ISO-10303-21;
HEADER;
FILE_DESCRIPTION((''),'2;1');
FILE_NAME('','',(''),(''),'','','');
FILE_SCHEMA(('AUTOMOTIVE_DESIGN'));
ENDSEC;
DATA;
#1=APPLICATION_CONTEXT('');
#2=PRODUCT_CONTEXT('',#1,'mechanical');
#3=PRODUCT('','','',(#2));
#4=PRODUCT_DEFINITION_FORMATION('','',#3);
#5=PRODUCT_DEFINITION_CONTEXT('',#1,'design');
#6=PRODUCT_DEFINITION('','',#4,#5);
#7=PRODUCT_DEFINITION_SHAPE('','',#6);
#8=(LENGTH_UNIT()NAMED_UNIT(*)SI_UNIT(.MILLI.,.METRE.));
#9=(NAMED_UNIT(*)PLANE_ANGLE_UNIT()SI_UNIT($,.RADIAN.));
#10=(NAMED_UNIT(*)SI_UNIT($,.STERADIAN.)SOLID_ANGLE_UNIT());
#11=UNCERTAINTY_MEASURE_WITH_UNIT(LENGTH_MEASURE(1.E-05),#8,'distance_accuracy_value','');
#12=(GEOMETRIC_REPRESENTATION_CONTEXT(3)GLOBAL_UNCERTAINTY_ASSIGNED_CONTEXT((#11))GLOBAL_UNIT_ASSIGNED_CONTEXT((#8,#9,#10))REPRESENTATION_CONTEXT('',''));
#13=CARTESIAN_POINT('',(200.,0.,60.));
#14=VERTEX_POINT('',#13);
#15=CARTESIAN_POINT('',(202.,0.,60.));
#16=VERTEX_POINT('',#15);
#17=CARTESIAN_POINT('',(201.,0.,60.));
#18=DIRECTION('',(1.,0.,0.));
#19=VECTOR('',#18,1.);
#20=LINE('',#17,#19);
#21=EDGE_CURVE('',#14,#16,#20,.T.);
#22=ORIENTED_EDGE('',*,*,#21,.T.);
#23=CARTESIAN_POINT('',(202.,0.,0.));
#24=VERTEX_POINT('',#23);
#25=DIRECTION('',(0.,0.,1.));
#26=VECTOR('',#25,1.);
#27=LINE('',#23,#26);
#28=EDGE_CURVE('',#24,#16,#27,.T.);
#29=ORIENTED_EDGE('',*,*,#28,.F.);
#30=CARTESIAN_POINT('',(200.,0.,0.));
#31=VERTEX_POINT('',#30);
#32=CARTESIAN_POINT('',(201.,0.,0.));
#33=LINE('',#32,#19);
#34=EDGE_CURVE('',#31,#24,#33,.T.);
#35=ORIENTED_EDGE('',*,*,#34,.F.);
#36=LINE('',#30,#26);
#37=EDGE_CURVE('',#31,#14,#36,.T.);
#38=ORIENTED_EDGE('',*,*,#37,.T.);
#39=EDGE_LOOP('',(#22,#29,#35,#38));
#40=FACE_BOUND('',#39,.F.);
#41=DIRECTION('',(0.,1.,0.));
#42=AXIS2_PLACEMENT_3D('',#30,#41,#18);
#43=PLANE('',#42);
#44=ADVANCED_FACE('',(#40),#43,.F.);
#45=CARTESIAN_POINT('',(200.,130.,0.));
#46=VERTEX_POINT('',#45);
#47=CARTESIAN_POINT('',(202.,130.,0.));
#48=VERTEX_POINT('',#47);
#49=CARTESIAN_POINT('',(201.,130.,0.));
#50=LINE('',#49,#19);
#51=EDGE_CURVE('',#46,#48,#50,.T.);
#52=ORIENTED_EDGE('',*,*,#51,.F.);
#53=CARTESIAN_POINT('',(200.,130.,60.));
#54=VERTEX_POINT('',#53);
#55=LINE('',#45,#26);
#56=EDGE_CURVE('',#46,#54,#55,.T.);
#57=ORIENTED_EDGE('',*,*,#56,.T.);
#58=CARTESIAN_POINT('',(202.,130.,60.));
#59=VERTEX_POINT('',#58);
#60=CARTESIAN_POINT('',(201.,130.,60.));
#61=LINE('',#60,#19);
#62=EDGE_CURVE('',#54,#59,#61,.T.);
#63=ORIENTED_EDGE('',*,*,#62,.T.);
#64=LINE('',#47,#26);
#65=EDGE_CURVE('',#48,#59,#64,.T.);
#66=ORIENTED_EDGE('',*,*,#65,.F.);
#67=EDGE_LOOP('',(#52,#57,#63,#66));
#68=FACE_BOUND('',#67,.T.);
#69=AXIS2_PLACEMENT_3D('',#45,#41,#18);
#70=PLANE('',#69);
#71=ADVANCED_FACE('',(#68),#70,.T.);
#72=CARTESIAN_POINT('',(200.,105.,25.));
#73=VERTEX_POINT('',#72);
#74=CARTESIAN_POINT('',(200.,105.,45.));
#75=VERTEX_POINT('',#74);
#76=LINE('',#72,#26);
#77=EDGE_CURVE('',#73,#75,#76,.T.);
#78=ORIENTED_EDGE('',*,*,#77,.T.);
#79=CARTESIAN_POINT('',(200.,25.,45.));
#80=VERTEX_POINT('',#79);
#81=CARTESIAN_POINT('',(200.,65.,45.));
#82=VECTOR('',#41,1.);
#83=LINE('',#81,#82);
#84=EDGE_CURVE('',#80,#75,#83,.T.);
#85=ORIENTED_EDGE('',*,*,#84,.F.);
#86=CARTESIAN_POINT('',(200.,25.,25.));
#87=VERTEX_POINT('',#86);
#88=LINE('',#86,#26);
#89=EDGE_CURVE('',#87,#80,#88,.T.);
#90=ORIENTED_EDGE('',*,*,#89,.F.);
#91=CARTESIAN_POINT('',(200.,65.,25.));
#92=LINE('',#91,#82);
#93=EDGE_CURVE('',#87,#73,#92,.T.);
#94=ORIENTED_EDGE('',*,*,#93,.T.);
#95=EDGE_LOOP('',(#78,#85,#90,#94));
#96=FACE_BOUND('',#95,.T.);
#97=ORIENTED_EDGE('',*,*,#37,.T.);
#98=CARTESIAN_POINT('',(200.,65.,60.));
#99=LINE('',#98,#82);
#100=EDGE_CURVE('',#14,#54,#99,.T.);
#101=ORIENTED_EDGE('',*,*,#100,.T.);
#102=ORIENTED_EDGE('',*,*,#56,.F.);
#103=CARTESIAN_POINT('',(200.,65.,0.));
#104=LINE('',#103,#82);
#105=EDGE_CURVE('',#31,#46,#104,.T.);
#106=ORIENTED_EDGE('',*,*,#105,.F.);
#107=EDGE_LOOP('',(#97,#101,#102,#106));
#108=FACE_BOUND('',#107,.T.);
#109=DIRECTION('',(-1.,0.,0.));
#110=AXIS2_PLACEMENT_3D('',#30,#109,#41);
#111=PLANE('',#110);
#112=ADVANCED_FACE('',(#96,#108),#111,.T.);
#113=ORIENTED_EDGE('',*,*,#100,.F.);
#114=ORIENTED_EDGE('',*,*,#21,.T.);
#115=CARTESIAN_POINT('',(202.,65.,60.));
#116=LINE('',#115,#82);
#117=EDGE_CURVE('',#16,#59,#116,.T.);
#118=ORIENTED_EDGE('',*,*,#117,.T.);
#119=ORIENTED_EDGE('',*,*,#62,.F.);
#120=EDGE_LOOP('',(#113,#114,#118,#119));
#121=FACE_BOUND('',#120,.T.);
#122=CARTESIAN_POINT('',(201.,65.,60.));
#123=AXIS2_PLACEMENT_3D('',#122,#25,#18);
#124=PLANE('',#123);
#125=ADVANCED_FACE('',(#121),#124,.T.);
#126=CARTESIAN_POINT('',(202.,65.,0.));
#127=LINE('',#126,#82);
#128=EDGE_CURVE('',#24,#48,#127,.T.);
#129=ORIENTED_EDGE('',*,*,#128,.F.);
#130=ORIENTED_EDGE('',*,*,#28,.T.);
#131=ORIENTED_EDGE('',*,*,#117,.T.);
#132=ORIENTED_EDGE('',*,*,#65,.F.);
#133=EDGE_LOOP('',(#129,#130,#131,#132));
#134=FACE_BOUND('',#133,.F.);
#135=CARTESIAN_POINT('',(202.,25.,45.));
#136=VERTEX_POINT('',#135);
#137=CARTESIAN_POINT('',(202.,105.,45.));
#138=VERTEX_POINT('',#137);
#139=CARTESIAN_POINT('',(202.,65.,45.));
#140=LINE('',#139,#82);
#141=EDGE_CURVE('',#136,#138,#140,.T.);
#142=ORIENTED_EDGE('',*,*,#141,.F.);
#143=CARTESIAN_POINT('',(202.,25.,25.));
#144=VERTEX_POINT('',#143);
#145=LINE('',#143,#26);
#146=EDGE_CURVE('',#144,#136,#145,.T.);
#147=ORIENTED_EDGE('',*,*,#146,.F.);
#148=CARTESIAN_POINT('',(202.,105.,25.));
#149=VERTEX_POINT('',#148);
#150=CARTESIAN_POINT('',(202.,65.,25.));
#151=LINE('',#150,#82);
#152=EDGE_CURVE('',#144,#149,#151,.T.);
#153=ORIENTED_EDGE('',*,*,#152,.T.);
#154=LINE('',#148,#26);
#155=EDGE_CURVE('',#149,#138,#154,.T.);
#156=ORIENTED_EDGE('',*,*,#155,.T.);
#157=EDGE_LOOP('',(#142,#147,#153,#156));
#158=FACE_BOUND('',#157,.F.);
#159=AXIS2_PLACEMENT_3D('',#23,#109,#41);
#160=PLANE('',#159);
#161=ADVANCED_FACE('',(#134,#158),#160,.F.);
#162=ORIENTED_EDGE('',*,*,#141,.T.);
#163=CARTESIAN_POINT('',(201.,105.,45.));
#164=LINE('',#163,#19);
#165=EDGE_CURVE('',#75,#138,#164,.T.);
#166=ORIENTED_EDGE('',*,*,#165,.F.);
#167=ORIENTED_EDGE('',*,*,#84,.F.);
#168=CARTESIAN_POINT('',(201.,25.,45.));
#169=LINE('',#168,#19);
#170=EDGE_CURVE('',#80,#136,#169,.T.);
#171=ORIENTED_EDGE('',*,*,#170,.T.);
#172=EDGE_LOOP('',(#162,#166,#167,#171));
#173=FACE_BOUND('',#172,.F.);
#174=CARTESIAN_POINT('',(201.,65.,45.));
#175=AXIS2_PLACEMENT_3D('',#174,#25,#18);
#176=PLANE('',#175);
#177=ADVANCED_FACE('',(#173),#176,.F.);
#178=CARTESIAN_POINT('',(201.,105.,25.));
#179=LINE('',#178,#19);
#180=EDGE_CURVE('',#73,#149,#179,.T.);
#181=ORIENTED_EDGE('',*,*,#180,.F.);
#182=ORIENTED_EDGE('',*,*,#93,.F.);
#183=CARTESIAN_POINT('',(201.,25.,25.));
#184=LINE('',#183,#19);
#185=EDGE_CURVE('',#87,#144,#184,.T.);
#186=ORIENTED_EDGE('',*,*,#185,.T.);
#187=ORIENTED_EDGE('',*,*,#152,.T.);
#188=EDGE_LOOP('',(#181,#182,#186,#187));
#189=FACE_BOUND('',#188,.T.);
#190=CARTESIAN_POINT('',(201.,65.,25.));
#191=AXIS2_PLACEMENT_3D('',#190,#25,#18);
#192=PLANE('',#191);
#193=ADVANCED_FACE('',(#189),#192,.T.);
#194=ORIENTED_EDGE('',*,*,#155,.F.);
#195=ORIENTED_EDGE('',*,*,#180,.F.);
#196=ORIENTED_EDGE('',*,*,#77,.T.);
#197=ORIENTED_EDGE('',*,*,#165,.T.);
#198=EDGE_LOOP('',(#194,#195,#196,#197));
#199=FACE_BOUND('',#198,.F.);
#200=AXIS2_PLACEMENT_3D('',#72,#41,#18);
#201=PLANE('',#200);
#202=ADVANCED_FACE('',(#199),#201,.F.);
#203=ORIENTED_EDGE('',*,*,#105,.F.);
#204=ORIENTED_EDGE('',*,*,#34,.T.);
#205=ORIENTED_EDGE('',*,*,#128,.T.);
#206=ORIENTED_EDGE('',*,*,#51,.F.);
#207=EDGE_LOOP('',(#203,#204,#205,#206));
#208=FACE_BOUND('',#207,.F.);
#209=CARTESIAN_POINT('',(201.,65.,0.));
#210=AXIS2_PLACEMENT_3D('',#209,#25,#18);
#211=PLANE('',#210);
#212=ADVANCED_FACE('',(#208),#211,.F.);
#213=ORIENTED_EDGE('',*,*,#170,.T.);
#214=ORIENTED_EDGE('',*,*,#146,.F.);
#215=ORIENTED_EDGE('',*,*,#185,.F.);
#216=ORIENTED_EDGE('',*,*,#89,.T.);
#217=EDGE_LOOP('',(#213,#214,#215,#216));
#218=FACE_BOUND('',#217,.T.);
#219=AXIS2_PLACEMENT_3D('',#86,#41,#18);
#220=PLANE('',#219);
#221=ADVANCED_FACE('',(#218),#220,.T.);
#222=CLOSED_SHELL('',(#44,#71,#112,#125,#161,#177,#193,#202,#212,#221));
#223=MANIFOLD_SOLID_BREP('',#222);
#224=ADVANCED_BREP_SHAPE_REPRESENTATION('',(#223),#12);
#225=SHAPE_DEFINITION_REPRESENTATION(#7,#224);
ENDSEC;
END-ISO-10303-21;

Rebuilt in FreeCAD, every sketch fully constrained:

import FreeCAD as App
import Part
import Sketcher

V = App.Vector
Q = App.Units.Quantity


def add_polygon(sketch, points):
    """Adds a closed chain of lines whose ends are joined by coincident constraints."""
    first, n = sketch.GeometryCount, len(points)
    for a, b in zip(points, points[1:] + points[:1]):
        sketch.addGeometry(Part.LineSegment(App.Vector(*a, 0), App.Vector(*b, 0)), False)
    for i in range(n):
        sketch.addConstraint(Sketcher.Constraint("Coincident", first + i, 2, first + (i + 1) % n, 1))

doc = App.newDocument("Part")
params = doc.addObject("Spreadsheet::Sheet", "Params")
for row, (alias, value) in enumerate([
    ("sketch1_width", "2 mm"),
    ("sketch1_height", "80 mm"),
    ("pad1_length", "20 mm"),
    ("sketch2_width", "2 mm"),
    ("sketch2_height", "130 mm"),
    ("pad2_length", "60 mm"),
], start=1):
    params.set(f"A{row}", alias)
    params.set(f"B{row}", "=" + value)
    params.setAlias(f"B{row}", alias)

body = doc.addObject("PartDesign::Body", "Body")

# Sketch on XY plane
sketch1 = doc.addObject("Sketcher::SketchObject", "Sketch")
body.addObject(sketch1)
sketch1.AttachmentSupport = (doc.XY_Plane, [""])
sketch1.MapMode = "FlatFace"
sketch1.AttachmentOffset = App.Placement(V(0, 0, 25), App.Rotation())
add_polygon(sketch1, [(200, 105), (200, 25), (202, 25), (202, 105)])  # lines 0-3
sketch1.addConstraint(Sketcher.Constraint("Vertical", 0))
sketch1.addConstraint(Sketcher.Constraint("Horizontal", 1))
sketch1.addConstraint(Sketcher.Constraint("Vertical", 2))
sketch1.addConstraint(Sketcher.Constraint("Horizontal", 3))
sketch1.addConstraint(Sketcher.Constraint("DistanceX", 1, 1, 1, 2, Q("2 mm")))
sketch1.addConstraint(Sketcher.Constraint("DistanceY", 0, 2, 0, 1, Q("80 mm")))
sketch1.addConstraint(Sketcher.Constraint("DistanceX", -1, 1, 0, 2, Q("200 mm")))
sketch1.addConstraint(Sketcher.Constraint("DistanceY", -1, 1, 0, 2, Q("25 mm")))
sketch1.setExpression("Constraints[8]", "Params.sketch1_width")
sketch1.setExpression("Constraints[9]", "Params.sketch1_height")
pad1 = doc.addObject("PartDesign::Pad", "Pad")
body.addObject(pad1)
pad1.Profile = sketch1
pad1.setExpression("Length", "Params.pad1_length")
body2 = doc.addObject("PartDesign::Body", "Body001")

# Sketch on XY plane
sketch2 = doc.addObject("Sketcher::SketchObject", "Sketch001")
body2.addObject(sketch2)
sketch2.AttachmentSupport = (doc.getObject("XY_Plane001"), [""])
sketch2.MapMode = "FlatFace"
add_polygon(sketch2, [(200, 130), (200, 0), (202, 0), (202, 130)])  # lines 0-3
sketch2.addConstraint(Sketcher.Constraint("Vertical", 0))
sketch2.addConstraint(Sketcher.Constraint("Horizontal", 1))
sketch2.addConstraint(Sketcher.Constraint("Vertical", 2))
sketch2.addConstraint(Sketcher.Constraint("Horizontal", 3))
sketch2.addConstraint(Sketcher.Constraint("PointOnObject", 0, 2, -1))
sketch2.addConstraint(Sketcher.Constraint("DistanceX", 1, 1, 1, 2, Q("2 mm")))
sketch2.addConstraint(Sketcher.Constraint("DistanceY", 0, 2, 0, 1, Q("130 mm")))
sketch2.addConstraint(Sketcher.Constraint("DistanceX", -1, 1, 0, 2, Q("200 mm")))
sketch2.setExpression("Constraints[9]", "Params.sketch2_width")
sketch2.setExpression("Constraints[10]", "Params.sketch2_height")
pad2 = doc.addObject("PartDesign::Pad", "Pad001")
body2.addObject(pad2)
pad2.Profile = sketch2
pad2.setExpression("Length", "Params.pad2_length")
doc.recompute()

boolean = doc.addObject("PartDesign::Boolean", "Boolean")
body2.addObject(boolean)
boolean.Type = "Cut"
boolean.addObjects([body])

doc.recompute()
